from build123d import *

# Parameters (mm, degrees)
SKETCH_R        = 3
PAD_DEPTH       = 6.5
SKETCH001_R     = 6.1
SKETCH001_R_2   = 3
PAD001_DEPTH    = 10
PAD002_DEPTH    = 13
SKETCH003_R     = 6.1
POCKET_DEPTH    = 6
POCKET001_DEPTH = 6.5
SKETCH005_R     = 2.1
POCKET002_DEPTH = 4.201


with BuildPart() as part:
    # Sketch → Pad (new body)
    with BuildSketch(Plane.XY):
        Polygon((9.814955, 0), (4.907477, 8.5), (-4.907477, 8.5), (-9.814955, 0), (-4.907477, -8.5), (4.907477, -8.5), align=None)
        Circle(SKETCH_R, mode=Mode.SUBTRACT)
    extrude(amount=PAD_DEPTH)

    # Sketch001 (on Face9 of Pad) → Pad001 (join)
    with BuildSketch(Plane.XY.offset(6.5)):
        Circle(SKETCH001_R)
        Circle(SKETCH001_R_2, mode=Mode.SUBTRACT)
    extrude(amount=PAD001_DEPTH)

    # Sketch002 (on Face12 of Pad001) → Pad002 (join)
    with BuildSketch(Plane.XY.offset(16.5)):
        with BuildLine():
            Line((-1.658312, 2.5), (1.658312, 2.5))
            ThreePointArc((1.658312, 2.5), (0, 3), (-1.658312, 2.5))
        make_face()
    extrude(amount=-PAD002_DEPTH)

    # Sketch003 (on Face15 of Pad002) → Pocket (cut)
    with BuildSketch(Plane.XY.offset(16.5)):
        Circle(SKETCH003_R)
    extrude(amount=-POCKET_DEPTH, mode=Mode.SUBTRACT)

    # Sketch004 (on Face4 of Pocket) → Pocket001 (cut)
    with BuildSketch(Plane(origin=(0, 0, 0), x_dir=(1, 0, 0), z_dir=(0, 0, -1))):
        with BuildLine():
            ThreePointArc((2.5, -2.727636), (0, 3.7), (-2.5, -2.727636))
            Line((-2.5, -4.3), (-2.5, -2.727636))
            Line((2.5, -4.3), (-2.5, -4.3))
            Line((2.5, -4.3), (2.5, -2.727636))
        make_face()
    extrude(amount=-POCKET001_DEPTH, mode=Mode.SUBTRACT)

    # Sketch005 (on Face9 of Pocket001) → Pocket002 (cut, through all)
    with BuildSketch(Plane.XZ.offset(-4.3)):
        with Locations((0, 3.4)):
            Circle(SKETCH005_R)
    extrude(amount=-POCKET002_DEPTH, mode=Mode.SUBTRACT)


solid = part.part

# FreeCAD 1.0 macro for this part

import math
import FreeCAD as App
import Part
import Sketcher
Q = App.Units.Quantity


def add_polygon(sketch, points):
    """Adds a closed chain of lines whose ends are joined by coincident constraints."""
    first, n = sketch.GeometryCount, len(points)
    for a, b in zip(points, points[1:] + points[:1]):
        sketch.addGeometry(Part.LineSegment(App.Vector(*a, 0), App.Vector(*b, 0)), False)
    for i in range(n):
        sketch.addConstraint(Sketcher.Constraint("Coincident", first + i, 2, first + (i + 1) % n, 1))

doc = App.newDocument("Part")
body = doc.addObject("PartDesign::Body", "Body")

sketch1 = doc.addObject("Sketcher::SketchObject", "Sketch")
body.addObject(sketch1)
sketch1.AttachmentSupport = (doc.XY_Plane, [""])
sketch1.MapMode = "FlatFace"
add_polygon(sketch1, [(9.8, 0), (4.9, 8.5), (-4.9, 8.5), (-9.8, 0), (-4.9, -8.5), (4.9, -8.5)])
sketch1.addGeometry(Part.Circle(App.Vector(0, 0, 0), App.Vector(0, 0, 1), 3), False)
sketch1.addConstraint(Sketcher.Constraint("Horizontal", 1))
sketch1.addConstraint(Sketcher.Constraint("Horizontal", 4))
sketch1.addConstraint(Sketcher.Constraint("Coincident", 6, 3, -1, 1))
sketch1.addConstraint(Sketcher.Constraint("Symmetric", 0, 2, 3, 2, -1, 1))
sketch1.addConstraint(Sketcher.Constraint("Symmetric", 2, 2, 5, 2, -1, 1))
sketch1.addConstraint(Sketcher.Constraint("PointOnObject", 2, 2, -1))
sketch1.addConstraint(Sketcher.Constraint("Parallel", 2, 5))
sketch1.addConstraint(Sketcher.Constraint("Vertical", 1, 2, 3, 2))
sketch1.addConstraint(Sketcher.Constraint("Diameter", 6, 6.0))
sketch1.addConstraint(Sketcher.Constraint("Angle", 0, Q("120.000004 deg")))
sketch1.addConstraint(Sketcher.Constraint("DistanceY", 3, 2, 1, 2, 17.0))
sketch1.addConstraint(Sketcher.Constraint("DistanceX", 1, 2, 1, 1, 9.814954))
pad1 = doc.addObject("PartDesign::Pad", "Pad")
body.addObject(pad1)
pad1.Profile = sketch1
pad1.Length = 6.5

sketch2 = doc.addObject("Sketcher::SketchObject", "Sketch001")
body.addObject(sketch2)
sketch2.AttachmentSupport = (doc.XY_Plane, [""])
sketch2.MapMode = "FlatFace"
sketch2.AttachmentOffset = App.Placement(App.Vector(0, 0, 6.5), App.Rotation())
sketch2.addGeometry(Part.Circle(App.Vector(0, 0, 0), App.Vector(0, 0, 1), 6.1), False)
sketch2.addGeometry(Part.Circle(App.Vector(0, 0, 0), App.Vector(0, 0, 1), 3), False)
sketch2.addConstraint(Sketcher.Constraint("Coincident", 0, 3, -1, 1))
sketch2.addConstraint(Sketcher.Constraint("Coincident", 1, 3, -1, 1))
sketch2.addConstraint(Sketcher.Constraint("Diameter", 1, 6.0))
sketch2.addConstraint(Sketcher.Constraint("Diameter", 0, 12.2))
pad2 = doc.addObject("PartDesign::Pad", "Pad001")
body.addObject(pad2)
pad2.Profile = sketch2
pad2.Length = 10

sketch3 = doc.addObject("Sketcher::SketchObject", "Sketch002")
body.addObject(sketch3)
sketch3.AttachmentSupport = (doc.XY_Plane, [""])
sketch3.MapMode = "FlatFace"
sketch3.AttachmentOffset = App.Placement(App.Vector(0, 0, 16.5), App.Rotation())
sketch3.addGeometry(Part.LineSegment(App.Vector(-1.7, 2.5, 0), App.Vector(1.7, 2.5, 0)), False)
sketch3.addGeometry(Part.ArcOfCircle(Part.Circle(App.Vector(0, 0, 0), App.Vector(0, 0, 1), 3), math.radians(56), math.radians(124)), False)
sketch3.addConstraint(Sketcher.Constraint("Coincident", 0, 1, 1, 2))
sketch3.addConstraint(Sketcher.Constraint("Coincident", 1, 1, 0, 2))
sketch3.addConstraint(Sketcher.Constraint("Horizontal", 0))
sketch3.addConstraint(Sketcher.Constraint("Coincident", 1, 3, -1, 1))
sketch3.addConstraint(Sketcher.Constraint("Radius", 1, 2.999999))
sketch3.addConstraint(Sketcher.Constraint("DistanceY", -1, 1, 0, 1, 2.5))
pad3 = doc.addObject("PartDesign::Pad", "Pad002")
body.addObject(pad3)
pad3.Profile = sketch3
pad3.Length = 13
pad3.Reversed = True

sketch4 = doc.addObject("Sketcher::SketchObject", "Sketch003")
body.addObject(sketch4)
sketch4.AttachmentSupport = (doc.XY_Plane, [""])
sketch4.MapMode = "FlatFace"
sketch4.AttachmentOffset = App.Placement(App.Vector(0, 0, 16.5), App.Rotation())
sketch4.addGeometry(Part.Circle(App.Vector(0, 0, 0), App.Vector(0, 0, 1), 6), False)
sketch4.addConstraint(Sketcher.Constraint("Coincident", 0, 3, -1, 1))
sketch4.addConstraint(Sketcher.Constraint("Diameter", 0, 12.2))
pocket1 = doc.addObject("PartDesign::Pocket", "Pocket")
body.addObject(pocket1)
pocket1.Profile = sketch4
pocket1.Length = 6

sketch5 = doc.addObject("Sketcher::SketchObject", "Sketch004")
body.addObject(sketch5)
sketch5.AttachmentSupport = (doc.XY_Plane, [""])
sketch5.MapMode = "FlatFace"
sketch5.addGeometry(Part.ArcOfCircle(Part.Circle(App.Vector(0, 0, 0), App.Vector(0, 0, 1), 3.7), math.radians(133), math.radians(407)), False)
sketch5.addGeometry(Part.LineSegment(App.Vector(-2.5, 2.7, 0), App.Vector(-2.5, 4.3, 0)), False)
sketch5.addGeometry(Part.LineSegment(App.Vector(-2.5, 4.3, 0), App.Vector(2.5, 4.3, 0)), False)
sketch5.addGeometry(Part.LineSegment(App.Vector(2.5, 4.3, 0), App.Vector(2.5, 2.7, 0)), False)
sketch5.addConstraint(Sketcher.Constraint("Coincident", 0, 1, 1, 1))
sketch5.addConstraint(Sketcher.Constraint("Coincident", 1, 2, 2, 1))
sketch5.addConstraint(Sketcher.Constraint("Coincident", 2, 2, 3, 1))
sketch5.addConstraint(Sketcher.Constraint("Coincident", 3, 2, 0, 2))
sketch5.addConstraint(Sketcher.Constraint("Vertical", 1))
sketch5.addConstraint(Sketcher.Constraint("Horizontal", 2))
sketch5.addConstraint(Sketcher.Constraint("Vertical", 3))
sketch5.addConstraint(Sketcher.Constraint("Coincident", 0, 3, -1, 1))
sketch5.addConstraint(Sketcher.Constraint("Horizontal", 0, 1, 3, 2))
sketch5.addConstraint(Sketcher.Constraint("Radius", 0, 3.7))
sketch5.addConstraint(Sketcher.Constraint("DistanceX", 2, 1, 2, 2, 5.0))
sketch5.addConstraint(Sketcher.Constraint("DistanceY", -1, 1, 1, 2, 4.3))
pocket2 = doc.addObject("PartDesign::Pocket", "Pocket001")
body.addObject(pocket2)
pocket2.Profile = sketch5
pocket2.Length = 6.5
pocket2.Reversed = True

sketch6 = doc.addObject("Sketcher::SketchObject", "Sketch005")
body.addObject(sketch6)
sketch6.AttachmentSupport = (doc.XZ_Plane, [""])
sketch6.MapMode = "FlatFace"
sketch6.AttachmentOffset = App.Placement(App.Vector(0, 0, -4.3), App.Rotation())
sketch6.addGeometry(Part.Circle(App.Vector(0, 3.4, 0), App.Vector(0, 0, 1), 2.1), False)
sketch6.addConstraint(Sketcher.Constraint("PointOnObject", 0, 3, -2))
sketch6.addConstraint(Sketcher.Constraint("Diameter", 0, 4.2))
sketch6.addConstraint(Sketcher.Constraint("DistanceY", -1, 1, 0, 3, 3.4))
pocket3 = doc.addObject("PartDesign::Pocket", "Pocket002")
body.addObject(pocket3)
pocket3.Profile = sketch6
pocket3.Type = "ThroughAll"

doc.recompute()
